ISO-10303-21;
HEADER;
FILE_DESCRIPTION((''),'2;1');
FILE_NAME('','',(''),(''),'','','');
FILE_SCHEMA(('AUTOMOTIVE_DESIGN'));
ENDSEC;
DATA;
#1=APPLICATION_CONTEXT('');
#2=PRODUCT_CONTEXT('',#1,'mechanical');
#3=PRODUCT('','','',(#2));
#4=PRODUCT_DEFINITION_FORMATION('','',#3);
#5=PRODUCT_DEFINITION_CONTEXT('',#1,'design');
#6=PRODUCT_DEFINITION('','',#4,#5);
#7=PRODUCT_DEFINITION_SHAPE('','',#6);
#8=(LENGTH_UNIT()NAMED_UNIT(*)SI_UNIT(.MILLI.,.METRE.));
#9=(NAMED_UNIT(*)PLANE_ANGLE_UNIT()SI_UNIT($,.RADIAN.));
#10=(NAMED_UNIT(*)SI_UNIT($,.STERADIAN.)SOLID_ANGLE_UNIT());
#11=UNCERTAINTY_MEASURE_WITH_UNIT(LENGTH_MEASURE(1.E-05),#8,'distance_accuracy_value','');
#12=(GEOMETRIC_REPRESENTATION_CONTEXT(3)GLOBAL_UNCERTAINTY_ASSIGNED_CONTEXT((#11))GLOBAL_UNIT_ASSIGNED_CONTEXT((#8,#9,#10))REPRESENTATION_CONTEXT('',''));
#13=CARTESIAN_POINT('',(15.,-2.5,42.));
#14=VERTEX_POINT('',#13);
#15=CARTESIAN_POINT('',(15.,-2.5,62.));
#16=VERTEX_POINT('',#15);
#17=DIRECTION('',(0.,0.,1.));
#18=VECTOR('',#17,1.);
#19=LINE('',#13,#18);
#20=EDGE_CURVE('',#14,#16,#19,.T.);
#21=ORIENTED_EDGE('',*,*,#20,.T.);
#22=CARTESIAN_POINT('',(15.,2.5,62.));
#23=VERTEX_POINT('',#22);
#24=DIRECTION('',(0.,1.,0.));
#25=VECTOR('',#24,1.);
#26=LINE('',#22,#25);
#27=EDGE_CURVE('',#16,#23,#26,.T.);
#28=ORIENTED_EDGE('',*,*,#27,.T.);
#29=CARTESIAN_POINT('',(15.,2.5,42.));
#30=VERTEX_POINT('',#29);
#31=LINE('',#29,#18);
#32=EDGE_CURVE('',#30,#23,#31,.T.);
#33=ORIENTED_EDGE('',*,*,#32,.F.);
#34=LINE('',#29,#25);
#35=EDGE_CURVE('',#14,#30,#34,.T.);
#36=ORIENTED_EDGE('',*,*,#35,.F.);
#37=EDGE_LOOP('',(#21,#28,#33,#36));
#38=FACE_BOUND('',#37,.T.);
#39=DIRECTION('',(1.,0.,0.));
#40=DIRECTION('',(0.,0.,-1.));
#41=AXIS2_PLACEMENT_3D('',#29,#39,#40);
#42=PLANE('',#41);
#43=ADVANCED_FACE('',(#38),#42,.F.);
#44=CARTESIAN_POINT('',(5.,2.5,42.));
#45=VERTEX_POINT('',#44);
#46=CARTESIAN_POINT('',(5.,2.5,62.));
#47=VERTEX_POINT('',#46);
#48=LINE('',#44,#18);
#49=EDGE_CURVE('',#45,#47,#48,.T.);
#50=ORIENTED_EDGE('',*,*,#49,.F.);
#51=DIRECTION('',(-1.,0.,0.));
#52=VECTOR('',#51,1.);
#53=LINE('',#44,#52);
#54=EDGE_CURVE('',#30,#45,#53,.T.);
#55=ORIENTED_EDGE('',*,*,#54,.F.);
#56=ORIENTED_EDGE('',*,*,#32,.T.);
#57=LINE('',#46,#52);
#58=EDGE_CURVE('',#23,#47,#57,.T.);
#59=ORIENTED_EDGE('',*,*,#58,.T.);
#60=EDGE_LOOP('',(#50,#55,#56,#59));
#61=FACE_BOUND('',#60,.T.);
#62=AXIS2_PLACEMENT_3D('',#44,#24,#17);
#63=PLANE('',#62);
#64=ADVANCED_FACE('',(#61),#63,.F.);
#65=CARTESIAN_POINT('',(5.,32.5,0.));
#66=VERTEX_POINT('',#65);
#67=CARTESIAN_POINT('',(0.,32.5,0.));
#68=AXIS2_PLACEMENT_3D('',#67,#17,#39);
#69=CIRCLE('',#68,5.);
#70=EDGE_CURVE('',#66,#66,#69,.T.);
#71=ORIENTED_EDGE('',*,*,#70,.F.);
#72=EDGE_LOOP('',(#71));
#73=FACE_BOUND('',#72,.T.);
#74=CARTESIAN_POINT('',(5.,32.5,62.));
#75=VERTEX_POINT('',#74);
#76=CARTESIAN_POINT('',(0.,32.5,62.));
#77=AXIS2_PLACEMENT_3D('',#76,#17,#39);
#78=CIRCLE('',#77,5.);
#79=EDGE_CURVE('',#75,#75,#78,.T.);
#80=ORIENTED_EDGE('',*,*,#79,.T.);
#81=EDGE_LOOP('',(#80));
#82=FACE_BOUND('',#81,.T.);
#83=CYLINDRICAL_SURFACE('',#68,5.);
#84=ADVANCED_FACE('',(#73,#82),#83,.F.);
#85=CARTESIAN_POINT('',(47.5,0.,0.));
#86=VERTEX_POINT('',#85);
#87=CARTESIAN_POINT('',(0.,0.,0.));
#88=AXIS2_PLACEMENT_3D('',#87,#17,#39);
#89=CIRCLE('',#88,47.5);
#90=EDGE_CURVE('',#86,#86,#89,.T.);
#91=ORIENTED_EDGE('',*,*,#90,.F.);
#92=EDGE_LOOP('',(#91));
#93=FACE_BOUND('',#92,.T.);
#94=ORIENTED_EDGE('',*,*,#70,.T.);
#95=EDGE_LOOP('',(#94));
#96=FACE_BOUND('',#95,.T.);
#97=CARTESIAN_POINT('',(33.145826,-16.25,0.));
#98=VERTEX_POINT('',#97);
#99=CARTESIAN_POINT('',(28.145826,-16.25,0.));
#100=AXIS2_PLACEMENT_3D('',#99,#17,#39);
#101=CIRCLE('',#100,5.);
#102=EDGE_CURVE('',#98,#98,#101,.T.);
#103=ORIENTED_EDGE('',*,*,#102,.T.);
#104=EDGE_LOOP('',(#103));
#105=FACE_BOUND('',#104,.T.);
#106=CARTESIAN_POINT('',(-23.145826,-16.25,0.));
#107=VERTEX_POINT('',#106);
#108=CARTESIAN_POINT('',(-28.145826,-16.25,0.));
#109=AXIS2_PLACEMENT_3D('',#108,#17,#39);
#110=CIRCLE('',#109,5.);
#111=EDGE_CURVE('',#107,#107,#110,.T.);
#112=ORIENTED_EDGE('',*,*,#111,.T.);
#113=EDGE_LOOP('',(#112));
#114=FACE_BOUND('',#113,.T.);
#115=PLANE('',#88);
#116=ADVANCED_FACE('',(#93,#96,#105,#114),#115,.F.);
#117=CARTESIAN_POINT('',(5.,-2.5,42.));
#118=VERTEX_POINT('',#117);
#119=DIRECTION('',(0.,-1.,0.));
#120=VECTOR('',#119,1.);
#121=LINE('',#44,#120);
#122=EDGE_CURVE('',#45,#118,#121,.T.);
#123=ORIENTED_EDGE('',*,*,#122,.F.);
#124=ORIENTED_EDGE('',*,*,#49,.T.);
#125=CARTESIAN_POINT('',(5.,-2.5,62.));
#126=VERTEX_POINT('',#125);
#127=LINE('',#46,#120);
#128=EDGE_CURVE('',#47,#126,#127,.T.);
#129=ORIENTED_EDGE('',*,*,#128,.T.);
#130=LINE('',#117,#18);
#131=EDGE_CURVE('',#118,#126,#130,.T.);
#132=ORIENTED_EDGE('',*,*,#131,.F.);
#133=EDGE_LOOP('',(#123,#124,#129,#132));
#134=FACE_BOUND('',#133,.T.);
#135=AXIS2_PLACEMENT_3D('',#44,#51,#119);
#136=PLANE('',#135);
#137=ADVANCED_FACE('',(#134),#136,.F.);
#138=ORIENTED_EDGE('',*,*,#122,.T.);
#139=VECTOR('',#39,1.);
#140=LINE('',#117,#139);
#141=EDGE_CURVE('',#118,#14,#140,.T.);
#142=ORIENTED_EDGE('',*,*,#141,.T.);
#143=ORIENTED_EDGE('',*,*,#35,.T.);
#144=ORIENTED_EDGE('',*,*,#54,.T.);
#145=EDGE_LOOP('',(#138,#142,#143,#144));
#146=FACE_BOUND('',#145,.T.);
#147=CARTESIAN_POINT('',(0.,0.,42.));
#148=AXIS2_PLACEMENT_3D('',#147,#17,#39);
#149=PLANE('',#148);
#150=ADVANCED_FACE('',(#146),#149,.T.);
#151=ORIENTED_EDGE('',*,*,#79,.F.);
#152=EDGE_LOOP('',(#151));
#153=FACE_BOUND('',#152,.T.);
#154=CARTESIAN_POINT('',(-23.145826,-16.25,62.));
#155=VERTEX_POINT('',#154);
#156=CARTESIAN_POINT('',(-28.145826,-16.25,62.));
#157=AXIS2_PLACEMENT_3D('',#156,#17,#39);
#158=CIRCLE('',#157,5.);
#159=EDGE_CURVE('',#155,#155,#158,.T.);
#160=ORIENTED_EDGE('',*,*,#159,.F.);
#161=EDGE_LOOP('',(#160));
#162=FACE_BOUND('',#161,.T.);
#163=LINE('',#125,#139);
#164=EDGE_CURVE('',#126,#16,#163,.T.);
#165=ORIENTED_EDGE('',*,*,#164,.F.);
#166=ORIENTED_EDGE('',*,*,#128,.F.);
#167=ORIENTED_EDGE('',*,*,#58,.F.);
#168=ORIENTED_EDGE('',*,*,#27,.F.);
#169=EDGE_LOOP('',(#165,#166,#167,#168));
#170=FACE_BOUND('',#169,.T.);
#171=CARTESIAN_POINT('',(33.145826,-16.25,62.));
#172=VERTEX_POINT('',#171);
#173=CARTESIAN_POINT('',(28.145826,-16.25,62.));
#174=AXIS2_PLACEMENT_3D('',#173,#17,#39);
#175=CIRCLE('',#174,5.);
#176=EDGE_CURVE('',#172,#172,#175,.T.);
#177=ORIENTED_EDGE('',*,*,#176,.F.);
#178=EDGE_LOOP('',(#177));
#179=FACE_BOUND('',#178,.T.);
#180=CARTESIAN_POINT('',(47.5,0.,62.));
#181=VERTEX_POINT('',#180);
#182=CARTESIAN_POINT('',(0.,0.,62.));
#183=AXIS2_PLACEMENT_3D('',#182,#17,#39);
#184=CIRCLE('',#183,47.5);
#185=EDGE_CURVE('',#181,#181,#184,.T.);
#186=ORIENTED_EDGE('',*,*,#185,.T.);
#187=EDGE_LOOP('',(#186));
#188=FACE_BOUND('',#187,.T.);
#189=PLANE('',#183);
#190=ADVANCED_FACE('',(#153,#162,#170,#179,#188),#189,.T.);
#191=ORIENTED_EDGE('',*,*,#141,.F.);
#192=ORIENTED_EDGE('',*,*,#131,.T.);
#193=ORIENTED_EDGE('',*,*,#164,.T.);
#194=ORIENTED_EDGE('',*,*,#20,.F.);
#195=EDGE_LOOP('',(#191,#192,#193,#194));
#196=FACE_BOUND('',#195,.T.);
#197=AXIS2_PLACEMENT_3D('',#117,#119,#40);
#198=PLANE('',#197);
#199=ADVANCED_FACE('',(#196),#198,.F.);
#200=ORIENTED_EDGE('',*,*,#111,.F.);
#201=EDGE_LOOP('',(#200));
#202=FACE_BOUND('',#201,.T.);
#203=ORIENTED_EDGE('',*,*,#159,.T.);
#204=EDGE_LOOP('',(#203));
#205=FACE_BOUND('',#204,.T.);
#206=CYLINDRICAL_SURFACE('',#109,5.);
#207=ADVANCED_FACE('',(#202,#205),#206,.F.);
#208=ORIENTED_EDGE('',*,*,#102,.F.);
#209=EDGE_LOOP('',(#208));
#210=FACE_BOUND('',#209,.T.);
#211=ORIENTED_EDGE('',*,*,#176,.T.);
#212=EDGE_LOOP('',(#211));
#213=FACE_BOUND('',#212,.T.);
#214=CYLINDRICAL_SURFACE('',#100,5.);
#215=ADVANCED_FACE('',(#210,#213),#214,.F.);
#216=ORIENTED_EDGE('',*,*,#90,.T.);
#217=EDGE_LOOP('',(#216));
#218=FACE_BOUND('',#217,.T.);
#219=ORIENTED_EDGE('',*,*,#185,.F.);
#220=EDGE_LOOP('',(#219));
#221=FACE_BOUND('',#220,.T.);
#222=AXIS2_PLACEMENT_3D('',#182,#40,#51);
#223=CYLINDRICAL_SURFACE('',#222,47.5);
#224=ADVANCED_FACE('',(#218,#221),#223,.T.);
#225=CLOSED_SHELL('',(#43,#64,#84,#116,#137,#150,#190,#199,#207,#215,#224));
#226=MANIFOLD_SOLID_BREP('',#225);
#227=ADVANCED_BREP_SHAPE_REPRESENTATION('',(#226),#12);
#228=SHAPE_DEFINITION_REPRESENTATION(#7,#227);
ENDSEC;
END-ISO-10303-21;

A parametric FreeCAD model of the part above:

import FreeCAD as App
import Part
import Sketcher

V = App.Vector

doc = App.newDocument("Part")
body = doc.addObject("PartDesign::Body", "Body")

# Sketch on XY plane
sketch1 = doc.addObject("Sketcher::SketchObject", "Sketch")
body.addObject(sketch1)
sketch1.AttachmentSupport = (doc.XY_Plane, [""])
sketch1.MapMode = "FlatFace"
sketch1.addGeometry(Part.Circle(V(0, 0, 0), V(0, 0, 1), 47.5), False)
sketch1.addConstraint([
    Sketcher.Constraint("Coincident", 0, 3, -1, 1),
    Sketcher.Constraint("Diameter", 0, 95.0),
])
pad1 = doc.addObject("PartDesign::Pad", "Pad")
body.addObject(pad1)
pad1.Profile = sketch1
pad1.Length = 62

# Sketch on XY plane
sketch2 = doc.addObject("Sketcher::SketchObject", "Sketch001")
body.addObject(sketch2)
sketch2.AttachmentSupport = (doc.XY_Plane, [""])
sketch2.MapMode = "FlatFace"
sketch2.AttachmentOffset = App.Placement(V(0, 0, 62), App.Rotation())
sketch2.addGeometry([
    Part.LineSegment(V(5, 2.5, 0), V(5, -2.5, 0)),
    Part.LineSegment(V(5, -2.5, 0), V(15, -2.5, 0)),
    Part.LineSegment(V(15, -2.5, 0), V(15, 2.5, 0)),
    Part.LineSegment(V(15, 2.5, 0), V(5, 2.5, 0)),
], False)
sketch2.addConstraint([
    Sketcher.Constraint("Coincident", 0, 2, 1, 1),
    Sketcher.Constraint("Coincident", 1, 2, 2, 1),
    Sketcher.Constraint("Coincident", 2, 2, 3, 1),
    Sketcher.Constraint("Coincident", 3, 2, 0, 1),
    Sketcher.Constraint("Vertical", 0),
    Sketcher.Constraint("Horizontal", 1),
    Sketcher.Constraint("Vertical", 2),
    Sketcher.Constraint("Horizontal", 3),
    Sketcher.Constraint("DistanceX", 1, 1, 1, 2, 10.0),
    Sketcher.Constraint("DistanceY", 0, 2, 0, 1, 5.0),
    Sketcher.Constraint("DistanceX", -1, 1, 0, 2, 5.0),
    Sketcher.Constraint("DistanceY", 0, 2, -1, 1, 2.5),
])
pocket1 = doc.addObject("PartDesign::Pocket", "Pocket")
body.addObject(pocket1)
pocket1.Profile = sketch2
pocket1.Length = 20

# Sketch on XY plane
sketch3 = doc.addObject("Sketcher::SketchObject", "Sketch002")
body.addObject(sketch3)
sketch3.AttachmentSupport = (doc.XY_Plane, [""])
sketch3.MapMode = "FlatFace"
sketch3.AttachmentOffset = App.Placement(V(0, 0, 62), App.Rotation())
sketch3.addGeometry([
    Part.Circle(V(0, 32.5, 0), V(0, 0, 1), 5),
    Part.Circle(V(28.145826, -16.25, 0), V(0, 0, 1), 5),
    Part.Circle(V(-28.145826, -16.25, 0), V(0, 0, 1), 5),
], False)
sketch3.addConstraint([
    Sketcher.Constraint("Equal", 0, 1),
    Sketcher.Constraint("Equal", 1, 2),
    Sketcher.Constraint("Symmetric", 1, 3, 2, 3, -2),
    Sketcher.Constraint("PointOnObject", 0, 3, -2),
    Sketcher.Constraint("Diameter", 0, 10.0),
    Sketcher.Constraint("DistanceY", -1, 1, 0, 3, 32.5),
    Sketcher.Constraint("DistanceY", 1, 3, -1, 1, 16.25),
    Sketcher.Constraint("DistanceX", 2, 3, 1, 3, 56.291651),
])
pocket2 = doc.addObject("PartDesign::Pocket", "Pocket001")
body.addObject(pocket2)
pocket2.Profile = sketch3
pocket2.Type = "ThroughAll"

doc.recompute()
